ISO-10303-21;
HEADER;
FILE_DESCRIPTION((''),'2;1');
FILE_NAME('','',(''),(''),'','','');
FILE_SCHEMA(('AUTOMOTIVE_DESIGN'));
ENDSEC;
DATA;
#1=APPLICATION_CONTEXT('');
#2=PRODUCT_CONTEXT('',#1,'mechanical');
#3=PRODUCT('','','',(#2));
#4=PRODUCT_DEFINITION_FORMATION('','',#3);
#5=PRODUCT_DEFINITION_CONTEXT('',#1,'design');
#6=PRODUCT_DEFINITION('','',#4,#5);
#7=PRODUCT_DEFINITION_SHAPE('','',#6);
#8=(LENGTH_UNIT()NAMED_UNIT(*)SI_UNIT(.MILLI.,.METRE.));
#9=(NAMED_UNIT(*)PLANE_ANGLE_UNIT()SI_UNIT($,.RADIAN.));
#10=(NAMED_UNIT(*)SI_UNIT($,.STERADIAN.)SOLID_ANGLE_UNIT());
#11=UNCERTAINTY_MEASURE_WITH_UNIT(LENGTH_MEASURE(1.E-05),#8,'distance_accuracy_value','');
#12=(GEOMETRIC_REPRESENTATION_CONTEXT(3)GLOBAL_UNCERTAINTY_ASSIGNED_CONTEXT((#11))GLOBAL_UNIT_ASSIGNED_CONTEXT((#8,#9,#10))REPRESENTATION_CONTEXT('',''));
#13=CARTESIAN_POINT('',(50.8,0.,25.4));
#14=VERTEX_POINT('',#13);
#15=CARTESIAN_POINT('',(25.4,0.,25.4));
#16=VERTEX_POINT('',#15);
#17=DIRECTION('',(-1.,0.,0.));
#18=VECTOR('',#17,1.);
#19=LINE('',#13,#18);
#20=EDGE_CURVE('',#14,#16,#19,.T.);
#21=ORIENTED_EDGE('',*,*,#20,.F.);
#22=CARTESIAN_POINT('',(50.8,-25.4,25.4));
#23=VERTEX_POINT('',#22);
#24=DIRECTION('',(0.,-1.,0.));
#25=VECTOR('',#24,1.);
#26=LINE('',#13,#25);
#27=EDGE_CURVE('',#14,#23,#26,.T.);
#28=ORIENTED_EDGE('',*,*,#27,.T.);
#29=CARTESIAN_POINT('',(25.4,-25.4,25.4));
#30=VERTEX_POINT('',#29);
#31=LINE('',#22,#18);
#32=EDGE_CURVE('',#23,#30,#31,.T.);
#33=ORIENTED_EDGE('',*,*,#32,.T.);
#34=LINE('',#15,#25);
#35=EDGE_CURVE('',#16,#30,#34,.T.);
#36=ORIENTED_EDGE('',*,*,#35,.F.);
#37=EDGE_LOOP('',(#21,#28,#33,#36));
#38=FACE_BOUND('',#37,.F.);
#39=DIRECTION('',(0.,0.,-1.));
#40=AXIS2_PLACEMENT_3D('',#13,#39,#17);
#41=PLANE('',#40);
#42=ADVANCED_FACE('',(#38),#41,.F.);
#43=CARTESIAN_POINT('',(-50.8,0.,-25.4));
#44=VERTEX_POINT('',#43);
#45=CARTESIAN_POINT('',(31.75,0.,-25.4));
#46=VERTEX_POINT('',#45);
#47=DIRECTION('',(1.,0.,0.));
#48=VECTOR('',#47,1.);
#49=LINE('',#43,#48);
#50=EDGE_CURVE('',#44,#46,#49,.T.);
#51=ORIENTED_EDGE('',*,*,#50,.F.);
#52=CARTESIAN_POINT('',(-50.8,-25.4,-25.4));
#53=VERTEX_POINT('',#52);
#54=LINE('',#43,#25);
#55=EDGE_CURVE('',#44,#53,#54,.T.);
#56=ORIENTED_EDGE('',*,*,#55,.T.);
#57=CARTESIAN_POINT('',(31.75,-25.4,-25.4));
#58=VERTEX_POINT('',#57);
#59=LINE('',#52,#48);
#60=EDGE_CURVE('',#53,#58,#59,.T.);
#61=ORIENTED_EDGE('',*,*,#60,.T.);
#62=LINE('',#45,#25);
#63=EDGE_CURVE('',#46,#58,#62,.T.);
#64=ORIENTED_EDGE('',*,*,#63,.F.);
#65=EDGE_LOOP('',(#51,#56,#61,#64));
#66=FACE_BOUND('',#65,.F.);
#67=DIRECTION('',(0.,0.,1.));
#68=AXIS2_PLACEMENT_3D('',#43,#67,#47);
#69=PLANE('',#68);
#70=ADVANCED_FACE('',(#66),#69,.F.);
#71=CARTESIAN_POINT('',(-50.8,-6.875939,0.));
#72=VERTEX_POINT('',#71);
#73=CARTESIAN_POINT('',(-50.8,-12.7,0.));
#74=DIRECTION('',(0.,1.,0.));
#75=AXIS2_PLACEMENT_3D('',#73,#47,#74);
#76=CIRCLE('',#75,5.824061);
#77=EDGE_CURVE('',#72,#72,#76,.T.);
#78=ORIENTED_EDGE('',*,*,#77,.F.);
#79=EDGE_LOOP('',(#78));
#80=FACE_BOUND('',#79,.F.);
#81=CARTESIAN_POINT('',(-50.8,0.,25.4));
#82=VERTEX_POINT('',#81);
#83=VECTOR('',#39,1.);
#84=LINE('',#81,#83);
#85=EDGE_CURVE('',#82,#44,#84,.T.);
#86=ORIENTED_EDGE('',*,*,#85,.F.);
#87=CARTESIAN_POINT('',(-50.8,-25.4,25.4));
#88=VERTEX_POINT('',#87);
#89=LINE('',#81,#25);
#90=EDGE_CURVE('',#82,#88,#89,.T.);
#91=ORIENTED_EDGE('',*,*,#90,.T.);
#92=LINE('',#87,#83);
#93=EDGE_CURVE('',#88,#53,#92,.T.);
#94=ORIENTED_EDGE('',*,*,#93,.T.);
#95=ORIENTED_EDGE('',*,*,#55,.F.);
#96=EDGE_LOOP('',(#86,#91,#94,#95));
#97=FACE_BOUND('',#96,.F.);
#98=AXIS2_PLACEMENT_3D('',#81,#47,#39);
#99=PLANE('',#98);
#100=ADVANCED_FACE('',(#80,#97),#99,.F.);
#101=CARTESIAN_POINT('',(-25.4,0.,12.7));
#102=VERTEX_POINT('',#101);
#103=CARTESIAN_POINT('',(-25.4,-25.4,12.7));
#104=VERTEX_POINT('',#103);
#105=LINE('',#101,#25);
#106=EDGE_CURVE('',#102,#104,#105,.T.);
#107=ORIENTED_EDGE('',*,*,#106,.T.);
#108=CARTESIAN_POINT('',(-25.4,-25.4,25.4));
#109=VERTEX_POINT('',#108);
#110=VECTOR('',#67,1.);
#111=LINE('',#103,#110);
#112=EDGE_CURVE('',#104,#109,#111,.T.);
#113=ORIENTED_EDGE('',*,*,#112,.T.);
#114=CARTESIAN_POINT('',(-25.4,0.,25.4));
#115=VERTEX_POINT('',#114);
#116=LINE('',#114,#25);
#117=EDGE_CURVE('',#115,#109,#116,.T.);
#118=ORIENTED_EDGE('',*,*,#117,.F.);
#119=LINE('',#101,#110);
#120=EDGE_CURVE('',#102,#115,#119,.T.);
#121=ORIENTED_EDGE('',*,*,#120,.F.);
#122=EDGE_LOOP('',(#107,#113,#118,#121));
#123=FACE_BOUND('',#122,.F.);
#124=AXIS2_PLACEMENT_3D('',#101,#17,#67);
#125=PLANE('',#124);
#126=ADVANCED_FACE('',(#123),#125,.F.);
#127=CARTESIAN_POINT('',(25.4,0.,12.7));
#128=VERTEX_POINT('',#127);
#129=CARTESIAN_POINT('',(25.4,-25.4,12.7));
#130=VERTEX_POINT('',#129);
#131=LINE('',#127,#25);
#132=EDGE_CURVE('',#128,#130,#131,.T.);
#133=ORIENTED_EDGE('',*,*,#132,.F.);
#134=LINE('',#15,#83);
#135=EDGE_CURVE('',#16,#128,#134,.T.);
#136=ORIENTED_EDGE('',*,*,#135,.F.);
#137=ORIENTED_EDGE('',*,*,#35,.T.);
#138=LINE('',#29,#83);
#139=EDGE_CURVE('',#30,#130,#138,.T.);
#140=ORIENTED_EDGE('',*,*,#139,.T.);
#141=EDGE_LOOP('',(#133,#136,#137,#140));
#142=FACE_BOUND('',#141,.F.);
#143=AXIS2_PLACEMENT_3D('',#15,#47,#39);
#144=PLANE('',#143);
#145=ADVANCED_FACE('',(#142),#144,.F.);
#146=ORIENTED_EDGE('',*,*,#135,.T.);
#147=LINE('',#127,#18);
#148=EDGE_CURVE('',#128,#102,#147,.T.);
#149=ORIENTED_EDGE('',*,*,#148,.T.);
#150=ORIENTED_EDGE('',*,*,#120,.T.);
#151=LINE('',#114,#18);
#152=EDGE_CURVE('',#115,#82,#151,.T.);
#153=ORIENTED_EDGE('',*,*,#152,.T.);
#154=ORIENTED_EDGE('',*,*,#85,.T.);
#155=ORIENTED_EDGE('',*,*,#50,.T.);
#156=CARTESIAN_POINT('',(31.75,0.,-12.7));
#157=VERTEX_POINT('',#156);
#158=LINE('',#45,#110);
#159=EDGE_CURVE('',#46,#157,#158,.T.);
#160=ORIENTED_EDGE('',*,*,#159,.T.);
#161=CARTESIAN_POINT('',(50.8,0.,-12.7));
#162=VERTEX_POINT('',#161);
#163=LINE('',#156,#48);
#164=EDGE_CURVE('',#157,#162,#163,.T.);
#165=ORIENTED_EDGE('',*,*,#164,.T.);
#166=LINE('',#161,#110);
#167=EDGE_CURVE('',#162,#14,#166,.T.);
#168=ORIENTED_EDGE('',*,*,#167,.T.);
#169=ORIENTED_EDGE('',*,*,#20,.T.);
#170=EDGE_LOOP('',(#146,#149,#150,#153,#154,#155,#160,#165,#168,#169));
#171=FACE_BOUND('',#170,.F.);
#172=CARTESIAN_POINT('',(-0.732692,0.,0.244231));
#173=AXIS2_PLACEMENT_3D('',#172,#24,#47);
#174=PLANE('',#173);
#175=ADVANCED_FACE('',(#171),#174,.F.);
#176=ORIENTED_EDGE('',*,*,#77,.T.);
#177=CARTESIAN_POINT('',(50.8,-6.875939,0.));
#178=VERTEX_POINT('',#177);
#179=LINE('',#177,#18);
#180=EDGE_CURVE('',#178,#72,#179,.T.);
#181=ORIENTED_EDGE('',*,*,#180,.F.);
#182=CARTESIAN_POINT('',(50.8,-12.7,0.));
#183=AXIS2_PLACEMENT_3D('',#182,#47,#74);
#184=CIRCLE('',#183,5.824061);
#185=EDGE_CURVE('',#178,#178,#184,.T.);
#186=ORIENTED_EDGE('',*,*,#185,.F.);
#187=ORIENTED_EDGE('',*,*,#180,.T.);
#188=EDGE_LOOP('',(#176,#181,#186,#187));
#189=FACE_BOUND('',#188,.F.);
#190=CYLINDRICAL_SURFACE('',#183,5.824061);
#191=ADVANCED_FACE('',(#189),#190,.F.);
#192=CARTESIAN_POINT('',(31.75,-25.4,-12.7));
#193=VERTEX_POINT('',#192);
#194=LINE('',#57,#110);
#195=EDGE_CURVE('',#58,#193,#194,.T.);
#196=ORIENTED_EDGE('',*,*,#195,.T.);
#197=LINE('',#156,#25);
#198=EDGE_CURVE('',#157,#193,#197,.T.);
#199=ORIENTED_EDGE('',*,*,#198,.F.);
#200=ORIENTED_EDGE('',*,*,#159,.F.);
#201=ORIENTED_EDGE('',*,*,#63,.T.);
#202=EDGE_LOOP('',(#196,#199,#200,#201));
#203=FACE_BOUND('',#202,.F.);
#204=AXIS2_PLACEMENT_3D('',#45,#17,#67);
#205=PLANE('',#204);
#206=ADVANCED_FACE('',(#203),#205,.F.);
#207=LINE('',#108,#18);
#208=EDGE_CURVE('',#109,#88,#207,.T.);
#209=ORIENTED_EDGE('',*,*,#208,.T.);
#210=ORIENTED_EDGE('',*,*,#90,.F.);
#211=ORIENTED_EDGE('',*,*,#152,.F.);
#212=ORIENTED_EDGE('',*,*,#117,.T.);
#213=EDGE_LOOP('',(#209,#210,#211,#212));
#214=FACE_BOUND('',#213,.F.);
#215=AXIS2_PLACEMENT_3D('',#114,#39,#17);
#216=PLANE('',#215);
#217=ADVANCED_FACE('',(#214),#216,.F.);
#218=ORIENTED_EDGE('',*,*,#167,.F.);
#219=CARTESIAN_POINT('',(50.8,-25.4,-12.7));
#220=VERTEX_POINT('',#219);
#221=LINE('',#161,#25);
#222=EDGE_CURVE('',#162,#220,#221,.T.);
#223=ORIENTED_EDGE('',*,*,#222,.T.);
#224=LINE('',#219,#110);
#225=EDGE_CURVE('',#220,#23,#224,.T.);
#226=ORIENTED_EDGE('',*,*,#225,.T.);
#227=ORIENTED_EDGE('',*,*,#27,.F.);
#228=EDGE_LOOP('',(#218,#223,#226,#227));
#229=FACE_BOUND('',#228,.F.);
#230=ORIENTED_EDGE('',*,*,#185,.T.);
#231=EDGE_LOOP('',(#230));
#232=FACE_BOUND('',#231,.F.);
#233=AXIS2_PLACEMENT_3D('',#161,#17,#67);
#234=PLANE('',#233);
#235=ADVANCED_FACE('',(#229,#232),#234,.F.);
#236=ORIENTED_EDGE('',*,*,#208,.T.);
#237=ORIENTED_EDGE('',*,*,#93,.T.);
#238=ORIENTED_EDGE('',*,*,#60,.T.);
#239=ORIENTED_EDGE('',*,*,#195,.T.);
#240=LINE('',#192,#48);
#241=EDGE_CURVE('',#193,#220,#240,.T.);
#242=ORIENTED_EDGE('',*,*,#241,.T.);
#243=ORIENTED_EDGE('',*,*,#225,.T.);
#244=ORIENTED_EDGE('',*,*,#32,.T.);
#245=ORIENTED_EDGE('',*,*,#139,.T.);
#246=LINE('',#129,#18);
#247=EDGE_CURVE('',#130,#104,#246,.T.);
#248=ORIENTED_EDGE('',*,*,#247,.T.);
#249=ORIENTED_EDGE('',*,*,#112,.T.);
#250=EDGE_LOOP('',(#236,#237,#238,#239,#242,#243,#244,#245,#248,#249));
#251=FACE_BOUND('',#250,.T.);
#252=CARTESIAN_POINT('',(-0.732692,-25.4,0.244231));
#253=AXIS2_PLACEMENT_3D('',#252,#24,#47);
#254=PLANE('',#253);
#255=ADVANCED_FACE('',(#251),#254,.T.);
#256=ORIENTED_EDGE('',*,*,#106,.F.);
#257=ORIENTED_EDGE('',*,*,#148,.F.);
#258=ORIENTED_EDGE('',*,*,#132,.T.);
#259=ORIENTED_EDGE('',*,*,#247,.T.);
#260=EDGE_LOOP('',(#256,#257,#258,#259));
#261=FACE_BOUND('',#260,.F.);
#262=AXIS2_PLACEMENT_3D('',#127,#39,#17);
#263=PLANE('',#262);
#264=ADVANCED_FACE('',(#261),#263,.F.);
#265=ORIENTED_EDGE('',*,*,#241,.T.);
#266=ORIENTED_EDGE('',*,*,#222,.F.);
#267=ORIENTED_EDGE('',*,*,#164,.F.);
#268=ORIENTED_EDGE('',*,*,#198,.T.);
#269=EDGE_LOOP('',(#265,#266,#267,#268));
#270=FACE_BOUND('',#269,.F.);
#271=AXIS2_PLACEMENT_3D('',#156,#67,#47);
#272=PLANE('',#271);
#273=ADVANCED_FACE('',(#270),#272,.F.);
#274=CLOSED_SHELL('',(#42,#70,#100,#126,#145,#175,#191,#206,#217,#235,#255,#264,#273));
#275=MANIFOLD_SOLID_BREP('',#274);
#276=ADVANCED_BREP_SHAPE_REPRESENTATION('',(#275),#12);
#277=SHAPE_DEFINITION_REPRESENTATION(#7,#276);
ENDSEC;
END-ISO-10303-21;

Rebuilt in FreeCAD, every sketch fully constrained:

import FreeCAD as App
import Part
import Sketcher

V = App.Vector
Q = App.Units.Quantity

doc = App.newDocument("Part")
body = doc.addObject("PartDesign::Body", "Body")

sketch1 = body.newObject("Sketcher::SketchObject", "Sketch")
sketch1.AttachmentSupport = (doc.getObject("XZ_Plane"), [""])
sketch1.MapMode = "FlatFace"
sketch1.addGeometry([
    Part.LineSegment(V(-25, 25, 0), V(-51, 25, 0)),
    Part.LineSegment(V(-51, 25, 0), V(-51, -25, 0)),
    Part.LineSegment(V(-51, -25, 0), V(32, -25, 0)),
    Part.LineSegment(V(32, -25, 0), V(32, -13, 0)),
    Part.LineSegment(V(32, -13, 0), V(51, -13, 0)),
    Part.LineSegment(V(51, -13, 0), V(51, 25, 0)),
    Part.LineSegment(V(51, 25, 0), V(25, 25, 0)),
    Part.LineSegment(V(25, 25, 0), V(25, 13, 0)),
    Part.LineSegment(V(25, 13, 0), V(-25, 13, 0)),
    Part.LineSegment(V(-25, 13, 0), V(-25, 25, 0)),
], False)
sketch1.addConstraint([
    Sketcher.Constraint("Coincident", 0, 2, 1, 1),
    Sketcher.Constraint("Coincident", 1, 2, 2, 1),
    Sketcher.Constraint("Coincident", 2, 2, 3, 1),
    Sketcher.Constraint("Coincident", 3, 2, 4, 1),
    Sketcher.Constraint("Coincident", 4, 2, 5, 1),
    Sketcher.Constraint("Coincident", 5, 2, 6, 1),
    Sketcher.Constraint("Coincident", 6, 2, 7, 1),
    Sketcher.Constraint("Coincident", 7, 2, 8, 1),
    Sketcher.Constraint("Coincident", 8, 2, 9, 1),
    Sketcher.Constraint("Coincident", 9, 2, 0, 1),
    Sketcher.Constraint("Horizontal", 0),
    Sketcher.Constraint("Vertical", 1),
    Sketcher.Constraint("Horizontal", 2),
    Sketcher.Constraint("Vertical", 3),
    Sketcher.Constraint("Horizontal", 4),
    Sketcher.Constraint("Vertical", 5),
    Sketcher.Constraint("Horizontal", 6),
    Sketcher.Constraint("Vertical", 7),
    Sketcher.Constraint("Horizontal", 8),
    Sketcher.Constraint("Vertical", 9),
    Sketcher.Constraint("Symmetric", 1, 2, 5, 2, -1, 1),
    Sketcher.Constraint("Symmetric", 6, 2, 9, 2, -2),
    Sketcher.Constraint("Equal", 8, 1),
    Sketcher.Constraint("Equal", 3, 7),
    Sketcher.Constraint("DistanceX", 0, 2, 0, 1, Q("1 in")),
    Sketcher.Constraint("DistanceX", 8, 2, 8, 1, Q("2 in")),
    Sketcher.Constraint("DistanceY", 3, 1, 3, 2, Q("0.5 in")),
    Sketcher.Constraint("DistanceX", 2, 1, 2, 2, Q("3.25 in")),
])
pad1 = body.newObject("PartDesign::Pad", "Pad")
pad1.Profile = sketch1
pad1.Length = Q("1 in")

sketch2 = body.newObject("Sketcher::SketchObject", "Sketch001")
sketch2.AttachmentSupport = (doc.getObject("YZ_Plane"), [""])
sketch2.MapMode = "FlatFace"
sketch2.AttachmentOffset = App.Placement(V(0, 0, 2 * 25.4), App.Rotation())
sketch2.addGeometry(Part.Circle(V(-13, 0, 0), V(0, 0, 1), 6), False)
sketch2.addConstraint([
    Sketcher.Constraint("PointOnObject", 0, 3, -1),
    Sketcher.Constraint("DistanceX", 0, 3, -1, 1, Q("0.5 in")),
    Sketcher.Constraint("Diameter", 0, 11.648122),
])
pocket1 = body.newObject("PartDesign::Pocket", "Pocket")
pocket1.Profile = sketch2
pocket1.Type = "ThroughAll"

doc.recompute()
